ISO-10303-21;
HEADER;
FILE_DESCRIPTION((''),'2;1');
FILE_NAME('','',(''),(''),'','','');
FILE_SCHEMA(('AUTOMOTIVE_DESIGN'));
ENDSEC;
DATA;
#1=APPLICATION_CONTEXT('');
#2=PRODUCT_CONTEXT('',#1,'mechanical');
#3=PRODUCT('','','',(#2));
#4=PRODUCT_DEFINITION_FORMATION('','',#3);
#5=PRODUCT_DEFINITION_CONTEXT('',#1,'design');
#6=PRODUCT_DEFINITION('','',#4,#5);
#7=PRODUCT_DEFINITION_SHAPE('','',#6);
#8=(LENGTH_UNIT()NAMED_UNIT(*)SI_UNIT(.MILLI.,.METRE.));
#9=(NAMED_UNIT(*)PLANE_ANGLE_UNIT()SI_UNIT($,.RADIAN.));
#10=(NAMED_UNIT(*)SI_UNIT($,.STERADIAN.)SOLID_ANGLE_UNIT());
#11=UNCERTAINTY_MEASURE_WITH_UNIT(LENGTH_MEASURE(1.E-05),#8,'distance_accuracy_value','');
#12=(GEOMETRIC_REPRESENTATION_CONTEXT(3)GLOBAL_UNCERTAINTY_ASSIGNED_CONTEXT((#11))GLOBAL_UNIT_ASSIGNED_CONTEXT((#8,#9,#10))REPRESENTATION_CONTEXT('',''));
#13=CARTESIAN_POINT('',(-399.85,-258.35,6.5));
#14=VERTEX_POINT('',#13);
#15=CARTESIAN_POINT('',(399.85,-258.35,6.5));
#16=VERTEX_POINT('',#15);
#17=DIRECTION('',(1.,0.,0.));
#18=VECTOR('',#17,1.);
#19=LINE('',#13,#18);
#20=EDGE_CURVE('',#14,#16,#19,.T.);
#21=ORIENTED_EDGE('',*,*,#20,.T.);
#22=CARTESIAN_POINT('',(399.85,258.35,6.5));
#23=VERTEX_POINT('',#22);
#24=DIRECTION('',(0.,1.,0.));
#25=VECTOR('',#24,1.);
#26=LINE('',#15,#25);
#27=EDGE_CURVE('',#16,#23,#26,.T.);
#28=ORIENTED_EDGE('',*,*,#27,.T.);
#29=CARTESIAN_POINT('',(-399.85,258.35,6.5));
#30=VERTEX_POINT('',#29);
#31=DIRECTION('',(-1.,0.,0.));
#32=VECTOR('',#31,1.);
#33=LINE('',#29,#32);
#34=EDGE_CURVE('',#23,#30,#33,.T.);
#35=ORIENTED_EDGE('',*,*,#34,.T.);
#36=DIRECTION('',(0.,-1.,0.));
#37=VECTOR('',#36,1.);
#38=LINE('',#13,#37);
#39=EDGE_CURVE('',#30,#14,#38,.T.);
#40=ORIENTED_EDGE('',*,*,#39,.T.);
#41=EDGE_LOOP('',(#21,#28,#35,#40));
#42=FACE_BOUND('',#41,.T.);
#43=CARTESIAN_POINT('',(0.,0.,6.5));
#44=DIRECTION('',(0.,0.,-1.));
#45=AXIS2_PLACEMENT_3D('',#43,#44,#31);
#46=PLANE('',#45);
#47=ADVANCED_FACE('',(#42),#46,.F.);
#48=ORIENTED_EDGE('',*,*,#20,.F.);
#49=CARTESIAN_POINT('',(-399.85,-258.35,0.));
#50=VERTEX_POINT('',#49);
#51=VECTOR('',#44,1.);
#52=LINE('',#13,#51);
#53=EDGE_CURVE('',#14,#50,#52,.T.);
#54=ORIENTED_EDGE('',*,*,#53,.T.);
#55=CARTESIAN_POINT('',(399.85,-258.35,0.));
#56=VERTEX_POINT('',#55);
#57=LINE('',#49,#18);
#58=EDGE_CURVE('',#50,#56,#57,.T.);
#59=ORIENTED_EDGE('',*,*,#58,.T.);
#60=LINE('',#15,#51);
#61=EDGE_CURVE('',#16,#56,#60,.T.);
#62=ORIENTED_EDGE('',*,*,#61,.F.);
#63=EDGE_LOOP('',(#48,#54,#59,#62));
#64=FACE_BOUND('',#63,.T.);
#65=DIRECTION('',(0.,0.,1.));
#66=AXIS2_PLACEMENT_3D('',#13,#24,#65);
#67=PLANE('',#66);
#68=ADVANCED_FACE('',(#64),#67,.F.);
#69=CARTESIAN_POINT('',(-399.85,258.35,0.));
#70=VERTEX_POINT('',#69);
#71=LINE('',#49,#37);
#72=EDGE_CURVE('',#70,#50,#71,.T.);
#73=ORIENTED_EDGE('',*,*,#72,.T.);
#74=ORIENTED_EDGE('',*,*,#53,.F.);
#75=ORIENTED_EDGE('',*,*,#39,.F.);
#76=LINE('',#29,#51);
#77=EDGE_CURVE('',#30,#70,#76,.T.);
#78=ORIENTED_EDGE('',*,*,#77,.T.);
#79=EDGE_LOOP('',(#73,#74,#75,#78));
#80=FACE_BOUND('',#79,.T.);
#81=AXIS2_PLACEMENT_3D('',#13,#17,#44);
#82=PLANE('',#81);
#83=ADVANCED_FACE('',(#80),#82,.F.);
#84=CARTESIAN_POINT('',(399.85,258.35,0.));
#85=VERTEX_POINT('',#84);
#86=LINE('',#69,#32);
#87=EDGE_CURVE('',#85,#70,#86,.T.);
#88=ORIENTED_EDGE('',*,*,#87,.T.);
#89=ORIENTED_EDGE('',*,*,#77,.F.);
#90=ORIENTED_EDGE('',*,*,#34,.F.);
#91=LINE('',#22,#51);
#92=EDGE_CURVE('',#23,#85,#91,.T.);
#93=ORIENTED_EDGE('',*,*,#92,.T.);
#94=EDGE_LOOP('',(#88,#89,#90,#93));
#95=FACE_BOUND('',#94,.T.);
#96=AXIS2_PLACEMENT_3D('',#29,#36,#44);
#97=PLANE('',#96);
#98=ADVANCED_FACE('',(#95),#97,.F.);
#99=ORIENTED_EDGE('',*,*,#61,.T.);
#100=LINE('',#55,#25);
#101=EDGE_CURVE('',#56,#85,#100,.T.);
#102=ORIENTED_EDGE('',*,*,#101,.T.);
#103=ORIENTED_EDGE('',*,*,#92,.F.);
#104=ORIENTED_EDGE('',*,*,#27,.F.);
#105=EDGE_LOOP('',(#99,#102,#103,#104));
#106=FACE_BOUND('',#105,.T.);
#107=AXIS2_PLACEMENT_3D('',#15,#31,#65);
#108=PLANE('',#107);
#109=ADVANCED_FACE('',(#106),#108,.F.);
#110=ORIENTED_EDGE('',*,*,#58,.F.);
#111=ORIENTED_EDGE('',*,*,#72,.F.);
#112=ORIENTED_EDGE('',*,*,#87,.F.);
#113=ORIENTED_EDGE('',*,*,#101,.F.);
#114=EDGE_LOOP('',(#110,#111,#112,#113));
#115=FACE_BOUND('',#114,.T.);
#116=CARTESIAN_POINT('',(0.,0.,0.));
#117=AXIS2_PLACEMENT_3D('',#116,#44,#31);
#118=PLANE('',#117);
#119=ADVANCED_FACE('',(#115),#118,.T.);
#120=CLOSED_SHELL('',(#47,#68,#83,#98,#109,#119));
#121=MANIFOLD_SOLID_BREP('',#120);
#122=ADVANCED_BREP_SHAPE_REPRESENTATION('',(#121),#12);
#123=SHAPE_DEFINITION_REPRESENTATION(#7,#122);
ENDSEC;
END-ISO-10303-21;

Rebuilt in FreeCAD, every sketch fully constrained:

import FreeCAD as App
import Part
import Sketcher
Q = App.Units.Quantity


def add_polygon(sketch, points):
    """Adds a closed chain of lines whose ends are joined by coincident constraints."""
    first, n = sketch.GeometryCount, len(points)
    for a, b in zip(points, points[1:] + points[:1]):
        sketch.addGeometry(Part.LineSegment(App.Vector(*a, 0), App.Vector(*b, 0)), False)
    for i in range(n):
        sketch.addConstraint(Sketcher.Constraint("Coincident", first + i, 2, first + (i + 1) % n, 1))

doc = App.newDocument("Part")
body = doc.addObject("PartDesign::Body", "Body")

# Sketch on XY plane
sketch1 = doc.addObject("Sketcher::SketchObject", "Sketch")
body.addObject(sketch1)
sketch1.AttachmentSupport = (doc.XY_Plane, [""])
sketch1.MapMode = "FlatFace"
add_polygon(sketch1, [(-400, 258), (-400, -258), (400, -258), (400, 258)])  # lines 0-3
sketch1.addConstraint([
    Sketcher.Constraint("Vertical", 0),
    Sketcher.Constraint("Horizontal", 1),
    Sketcher.Constraint("Vertical", 2),
    Sketcher.Constraint("Horizontal", 3),
    Sketcher.Constraint("Symmetric", 0, 2, 2, 2, -1, 1),
    Sketcher.Constraint("DistanceX", 1, 1, 1, 2, Q("799.7 mm")),
    Sketcher.Constraint("DistanceY", 0, 2, 0, 1, Q("516.7 mm")),
])
pad1 = doc.addObject("PartDesign::Pad", "Pad")
body.addObject(pad1)
pad1.Profile = sketch1
pad1.Length = 6.5

doc.recompute()
